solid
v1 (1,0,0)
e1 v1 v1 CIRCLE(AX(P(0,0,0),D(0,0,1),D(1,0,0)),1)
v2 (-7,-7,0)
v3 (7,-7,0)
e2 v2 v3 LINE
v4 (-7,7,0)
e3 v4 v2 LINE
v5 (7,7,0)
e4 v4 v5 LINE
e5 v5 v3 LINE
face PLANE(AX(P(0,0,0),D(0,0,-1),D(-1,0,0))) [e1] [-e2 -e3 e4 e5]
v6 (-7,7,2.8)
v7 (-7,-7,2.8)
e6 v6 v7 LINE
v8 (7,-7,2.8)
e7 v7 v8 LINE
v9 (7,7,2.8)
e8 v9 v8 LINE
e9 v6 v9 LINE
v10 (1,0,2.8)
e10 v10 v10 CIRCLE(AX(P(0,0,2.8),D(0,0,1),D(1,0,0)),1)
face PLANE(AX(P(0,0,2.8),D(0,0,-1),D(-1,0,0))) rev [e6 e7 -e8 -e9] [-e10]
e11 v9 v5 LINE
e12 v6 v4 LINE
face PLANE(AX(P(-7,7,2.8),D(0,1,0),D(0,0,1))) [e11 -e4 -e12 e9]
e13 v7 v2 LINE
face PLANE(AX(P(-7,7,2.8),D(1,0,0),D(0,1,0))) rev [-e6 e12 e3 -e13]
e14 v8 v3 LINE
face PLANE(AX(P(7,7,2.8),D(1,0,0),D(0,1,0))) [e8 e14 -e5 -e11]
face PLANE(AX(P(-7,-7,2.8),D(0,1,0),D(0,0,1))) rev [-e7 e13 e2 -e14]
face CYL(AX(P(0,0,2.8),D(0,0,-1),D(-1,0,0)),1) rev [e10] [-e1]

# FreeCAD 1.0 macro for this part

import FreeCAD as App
import Part
import Sketcher
from FreeCAD import Vector
Q = App.Units.Quantity


def add_polygon(sketch, points):
    """Adds a closed chain of lines whose ends are joined by coincident constraints."""
    first, n = sketch.GeometryCount, len(points)
    for a, b in zip(points, points[1:] + points[:1]):
        sketch.addGeometry(Part.LineSegment(App.Vector(*a, 0), App.Vector(*b, 0)), False)
    for i in range(n):
        sketch.addConstraint(Sketcher.Constraint("Coincident", first + i, 2, first + (i + 1) % n, 1))

doc = App.newDocument("Part")
body = doc.addObject("PartDesign::Body", "Body")

# Sketch on XY plane
sketch1 = doc.addObject("Sketcher::SketchObject", "Sketch")
body.addObject(sketch1)
sketch1.AttachmentSupport = (doc.XY_Plane, [""])
sketch1.MapMode = "FlatFace"
add_polygon(sketch1, [(-7, 7), (-7, -7), (7, -7), (7, 7)])  # lines 0-3
sketch1.addConstraint(Sketcher.Constraint("Vertical", 0))
sketch1.addConstraint(Sketcher.Constraint("Horizontal", 1))
sketch1.addConstraint(Sketcher.Constraint("Vertical", 2))
sketch1.addConstraint(Sketcher.Constraint("Horizontal", 3))
sketch1.addConstraint(Sketcher.Constraint("Symmetric", 0, 2, 2, 2, -1, 1))
sketch1.addConstraint(Sketcher.Constraint("Equal", 3, 0))
sketch1.addConstraint(Sketcher.Constraint("DistanceX", 1, 1, 1, 2, Q("14 mm")))
pad1 = doc.addObject("PartDesign::Pad", "Pad")
body.addObject(pad1)
pad1.Profile = sketch1
pad1.Length = 2.8

# Sketch on XY plane
sketch2 = doc.addObject("Sketcher::SketchObject", "Sketch001")
body.addObject(sketch2)
sketch2.AttachmentSupport = (doc.XY_Plane, [""])
sketch2.MapMode = "FlatFace"
sketch2.addGeometry(Part.Circle(Vector(0, 0, 0), Vector(0, 0, 1), 1), False)
sketch2.addConstraint(Sketcher.Constraint("Coincident", 0, 3, -1, 1))
sketch2.addConstraint(Sketcher.Constraint("Diameter", 0, Q("2 mm")))
pocket1 = doc.addObject("PartDesign::Pocket", "Pocket")
body.addObject(pocket1)
pocket1.Profile = sketch2
pocket1.Length = 2.8
pocket1.Reversed = True

doc.recompute()
